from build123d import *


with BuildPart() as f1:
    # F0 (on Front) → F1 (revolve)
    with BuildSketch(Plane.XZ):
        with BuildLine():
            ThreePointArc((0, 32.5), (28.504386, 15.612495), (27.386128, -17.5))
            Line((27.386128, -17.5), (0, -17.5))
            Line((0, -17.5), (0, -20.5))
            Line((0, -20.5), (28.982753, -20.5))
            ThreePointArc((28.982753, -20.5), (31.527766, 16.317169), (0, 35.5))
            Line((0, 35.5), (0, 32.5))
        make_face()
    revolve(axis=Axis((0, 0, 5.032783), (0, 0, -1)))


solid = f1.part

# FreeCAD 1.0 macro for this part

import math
import FreeCAD as App
import Part
import Sketcher
Q = App.Units.Quantity

doc = App.newDocument("Part")
params = doc.addObject("Spreadsheet::Sheet", "Params")
for row, (alias, value) in enumerate([
    ("sketch1_radius", "32.5 mm"),
    ("sketch1_radius2", "35.499999 mm"),
    ("revolution_angle", "360 deg"),
], start=1):
    params.set(f"A{row}", alias)
    params.set(f"B{row}", "=" + value)
    params.setAlias(f"B{row}", alias)

body = doc.addObject("PartDesign::Body", "Body")

# Sketch on XZ plane
sketch1 = body.newObject("Sketcher::SketchObject", "Sketch")
sketch1.AttachmentSupport = (doc.getObject("XZ_Plane"), [""])
sketch1.MapMode = "FlatFace"
sketch1.addGeometry([
    Part.ArcOfCircle(Part.Circle(App.Vector(0, 0, 0), App.Vector(0, 0, 1), 32.5), math.radians(-33), math.radians(90)),  # 0
    Part.LineSegment(App.Vector(27.4, -17.5, 0), App.Vector(0, -17.5, 0)),  # 1
    Part.LineSegment(App.Vector(0, -17.5, 0), App.Vector(0, -20.5, 0)),  # 2
    Part.LineSegment(App.Vector(0, -20.5, 0), App.Vector(29, -20.5, 0)),  # 3
    Part.ArcOfCircle(Part.Circle(App.Vector(0, 0, 0), App.Vector(0, 0, 1), 35.5), math.radians(-35), math.radians(90)),  # 4
    Part.LineSegment(App.Vector(0, 35.5, 0), App.Vector(0, 32.5, 0)),  # 5
], False)
sketch1.addConstraint([
    Sketcher.Constraint("Coincident", 0, 1, 1, 1),
    Sketcher.Constraint("Coincident", 1, 2, 2, 1),
    Sketcher.Constraint("Coincident", 2, 2, 3, 1),
    Sketcher.Constraint("Coincident", 3, 2, 4, 1),
    Sketcher.Constraint("Coincident", 4, 2, 5, 1),
    Sketcher.Constraint("Coincident", 5, 2, 0, 2),
    Sketcher.Constraint("Horizontal", 1),
    Sketcher.Constraint("Vertical", 2),
    Sketcher.Constraint("Horizontal", 3),
    Sketcher.Constraint("Vertical", 5),
    Sketcher.Constraint("Coincident", 0, 3, -1, 1),
    Sketcher.Constraint("Coincident", 4, 3, -1, 1),
    Sketcher.Constraint("PointOnObject", 1, 2, -2),
    Sketcher.Constraint("PointOnObject", 4, 2, -2),
    Sketcher.Constraint("Equal", 2, 5),
    Sketcher.Constraint("Radius", 0, Q("32.5 mm")),
    Sketcher.Constraint("Radius", 4, Q("35.499999 mm")),
    Sketcher.Constraint("DistanceY", 1, 2, 4, 2, Q("53 mm")),
])
sketch1.setExpression("Constraints[15]", "Params.sketch1_radius")
sketch1.setExpression("Constraints[16]", "Params.sketch1_radius2")
revolution = body.newObject("PartDesign::Revolution", "Revolution")
revolution.Profile = sketch1
revolution.ReferenceAxis = (sketch1, ["V_Axis"])
revolution.setExpression("Angle", "Params.revolution_angle")

doc.recompute()
